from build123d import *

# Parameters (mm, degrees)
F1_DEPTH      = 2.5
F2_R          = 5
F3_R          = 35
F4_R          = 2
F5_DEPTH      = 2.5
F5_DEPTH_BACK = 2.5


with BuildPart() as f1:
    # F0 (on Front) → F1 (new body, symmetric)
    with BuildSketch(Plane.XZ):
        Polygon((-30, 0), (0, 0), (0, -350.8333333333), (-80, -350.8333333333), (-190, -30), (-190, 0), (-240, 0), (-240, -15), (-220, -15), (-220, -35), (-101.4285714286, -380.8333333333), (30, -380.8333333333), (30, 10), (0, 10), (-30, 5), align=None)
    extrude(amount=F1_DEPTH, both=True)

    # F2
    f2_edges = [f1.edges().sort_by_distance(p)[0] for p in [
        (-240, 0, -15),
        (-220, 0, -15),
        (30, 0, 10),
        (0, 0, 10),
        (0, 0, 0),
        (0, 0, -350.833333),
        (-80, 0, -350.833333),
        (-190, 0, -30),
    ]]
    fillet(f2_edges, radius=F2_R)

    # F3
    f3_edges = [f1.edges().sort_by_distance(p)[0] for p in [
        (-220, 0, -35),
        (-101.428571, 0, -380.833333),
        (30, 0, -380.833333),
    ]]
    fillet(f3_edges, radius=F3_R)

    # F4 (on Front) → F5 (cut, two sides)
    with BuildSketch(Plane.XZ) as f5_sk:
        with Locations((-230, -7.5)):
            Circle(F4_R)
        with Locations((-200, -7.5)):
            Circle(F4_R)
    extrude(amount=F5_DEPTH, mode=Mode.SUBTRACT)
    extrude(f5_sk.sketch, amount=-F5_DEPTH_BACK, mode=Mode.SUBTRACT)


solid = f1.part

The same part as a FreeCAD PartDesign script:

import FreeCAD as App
import Part
import Sketcher
from FreeCAD import Vector
Q = App.Units.Quantity


def edges_at(feature, points):
    """Names of the edges that pass closest to the given points."""
    edges = feature.Shape.Edges
    near = lambda p: min(range(len(edges)), key=lambda i: edges[i].distToShape(Part.Vertex(*p))[0])
    return sorted({f"Edge{near(p) + 1}" for p in points})

doc = App.newDocument("Part")
body = doc.addObject("PartDesign::Body", "Body")

sketch1 = doc.addObject("Sketcher::SketchObject", "Sketch")
body.addObject(sketch1)
sketch1.AttachmentSupport = (doc.XZ_Plane, [""])
sketch1.MapMode = "FlatFace"
sketch1.addGeometry([
    Part.LineSegment(Vector(-30, 0, 0), Vector(0, 0, 0)),
    Part.LineSegment(Vector(0, 0, 0), Vector(0, -351, 0)),
    Part.LineSegment(Vector(0, -351, 0), Vector(-80, -351, 0)),
    Part.LineSegment(Vector(-80, -351, 0), Vector(-190, -30, 0)),
    Part.LineSegment(Vector(-190, -30, 0), Vector(-190, 0, 0)),
    Part.LineSegment(Vector(-190, 0, 0), Vector(-240, 0, 0)),
    Part.LineSegment(Vector(-240, 0, 0), Vector(-240, -15, 0)),
    Part.LineSegment(Vector(-240, -15, 0), Vector(-220, -15, 0)),
    Part.LineSegment(Vector(-220, -15, 0), Vector(-220, -35, 0)),
    Part.LineSegment(Vector(-220, -35, 0), Vector(-101, -381, 0)),
    Part.LineSegment(Vector(-101, -381, 0), Vector(30, -381, 0)),
    Part.LineSegment(Vector(30, -381, 0), Vector(30, 10, 0)),
    Part.LineSegment(Vector(30, 10, 0), Vector(0, 10, 0)),
    Part.LineSegment(Vector(0, 10, 0), Vector(-30, 5, 0)),
    Part.LineSegment(Vector(-30, 5, 0), Vector(-30, 0, 0)),
], False)
sketch1.addConstraint([
    Sketcher.Constraint("Coincident", 0, 2, 1, 1),
    Sketcher.Constraint("Coincident", 1, 2, 2, 1),
    Sketcher.Constraint("Coincident", 2, 2, 3, 1),
    Sketcher.Constraint("Coincident", 3, 2, 4, 1),
    Sketcher.Constraint("Coincident", 4, 2, 5, 1),
    Sketcher.Constraint("Coincident", 5, 2, 6, 1),
    Sketcher.Constraint("Coincident", 6, 2, 7, 1),
    Sketcher.Constraint("Coincident", 7, 2, 8, 1),
    Sketcher.Constraint("Coincident", 8, 2, 9, 1),
    Sketcher.Constraint("Coincident", 9, 2, 10, 1),
    Sketcher.Constraint("Coincident", 10, 2, 11, 1),
    Sketcher.Constraint("Coincident", 11, 2, 12, 1),
    Sketcher.Constraint("Coincident", 12, 2, 13, 1),
    Sketcher.Constraint("Coincident", 13, 2, 14, 1),
    Sketcher.Constraint("Coincident", 14, 2, 0, 1),
    Sketcher.Constraint("Horizontal", 0),
    Sketcher.Constraint("Vertical", 1),
    Sketcher.Constraint("Horizontal", 2),
    Sketcher.Constraint("Vertical", 4),
    Sketcher.Constraint("Horizontal", 5),
    Sketcher.Constraint("Vertical", 6),
    Sketcher.Constraint("Horizontal", 7),
    Sketcher.Constraint("Vertical", 8),
    Sketcher.Constraint("Horizontal", 10),
    Sketcher.Constraint("Vertical", 11),
    Sketcher.Constraint("Horizontal", 12),
    Sketcher.Constraint("Vertical", 14),
    Sketcher.Constraint("Coincident", 0, 2, -1, 1),
    Sketcher.Constraint("PointOnObject", 4, 2, -1),
    Sketcher.Constraint("PointOnObject", 12, 2, -2),
    Sketcher.Constraint("Parallel", 3, 9),
    Sketcher.Constraint("Equal", 0, 12),
    Sketcher.Constraint("Equal", 12, 4),
    Sketcher.Constraint("Equal", 7, 8),
    Sketcher.Constraint("DistanceX", 0, 1, 0, 2, Q("30 mm")),
    Sketcher.Constraint("DistanceX", 2, 2, 2, 1, Q("80 mm")),
    Sketcher.Constraint("DistanceX", 5, 2, 5, 1, Q("50 mm")),
    Sketcher.Constraint("DistanceX", 7, 1, 7, 2, Q("20 mm")),
    Sketcher.Constraint("DistanceY", 6, 2, 6, 1, Q("15 mm")),
    Sketcher.Constraint("DistanceY", 14, 2, 14, 1, Q("5 mm")),
    Sketcher.Constraint("DistanceX", 3, 2, -1, 1, Q("190 mm")),
    Sketcher.Constraint("DistanceY", -1, 1, 11, 2, Q("10 mm")),
    Sketcher.Constraint("DistanceY", 9, 2, 2, 2, Q("30 mm")),
    Sketcher.Constraint("DistanceX", 10, 1, 10, 2, Q("131.428571 mm")),
])
pad1 = doc.addObject("PartDesign::Pad", "Pad")
body.addObject(pad1)
pad1.Profile = sketch1
pad1.Length = 5
pad1.Midplane = True
doc.recompute()

fillet = doc.addObject("PartDesign::Fillet", "Fillet")
body.addObject(fillet)
fillet.Base = (pad1, edges_at(pad1, [
    (-240, 0, -15),
    (-220, 0, -15),
    (30, 0, 10),
    (0, 0, 10),
    (0, 0, 0),
    (0, 0, -350.833),
    (-80, 0, -350.833),
    (-190, 0, -30),
]))
fillet.Radius = 5
doc.recompute()

fillet2 = doc.addObject("PartDesign::Fillet", "Fillet001")
body.addObject(fillet2)
fillet2.Base = (fillet, edges_at(fillet, [(-220, 0, -35), (-101.429, 0, -380.833), (30, 0, -380.833)]))
fillet2.Radius = 35

sketch2 = doc.addObject("Sketcher::SketchObject", "Sketch001")
body.addObject(sketch2)
sketch2.AttachmentSupport = (doc.XZ_Plane, [""])
sketch2.MapMode = "FlatFace"
sketch2.addGeometry([
    Part.Circle(Vector(-230, -7.5, 0), Vector(0, 0, 1), 2),
    Part.Circle(Vector(-200, -7.5, 0), Vector(0, 0, 1), 2),
], False)
sketch2.addConstraint([
    Sketcher.Constraint("Equal", 0, 1),
    Sketcher.Constraint("Horizontal", 0, 3, 1, 3),
    Sketcher.Constraint("Diameter", 0, Q("4 mm")),
    Sketcher.Constraint("DistanceX", 0, 3, -1, 1, Q("230 mm")),
    Sketcher.Constraint("DistanceX", 1, 3, -1, 1, Q("200 mm")),
    Sketcher.Constraint("DistanceY", 0, 3, -1, 1, Q("7.5 mm")),
])
pocket1 = doc.addObject("PartDesign::Pocket", "Pocket")
body.addObject(pocket1)
pocket1.Profile = sketch2
pocket1.Type = "ThroughAll"
pocket1.Midplane = True

doc.recompute()
